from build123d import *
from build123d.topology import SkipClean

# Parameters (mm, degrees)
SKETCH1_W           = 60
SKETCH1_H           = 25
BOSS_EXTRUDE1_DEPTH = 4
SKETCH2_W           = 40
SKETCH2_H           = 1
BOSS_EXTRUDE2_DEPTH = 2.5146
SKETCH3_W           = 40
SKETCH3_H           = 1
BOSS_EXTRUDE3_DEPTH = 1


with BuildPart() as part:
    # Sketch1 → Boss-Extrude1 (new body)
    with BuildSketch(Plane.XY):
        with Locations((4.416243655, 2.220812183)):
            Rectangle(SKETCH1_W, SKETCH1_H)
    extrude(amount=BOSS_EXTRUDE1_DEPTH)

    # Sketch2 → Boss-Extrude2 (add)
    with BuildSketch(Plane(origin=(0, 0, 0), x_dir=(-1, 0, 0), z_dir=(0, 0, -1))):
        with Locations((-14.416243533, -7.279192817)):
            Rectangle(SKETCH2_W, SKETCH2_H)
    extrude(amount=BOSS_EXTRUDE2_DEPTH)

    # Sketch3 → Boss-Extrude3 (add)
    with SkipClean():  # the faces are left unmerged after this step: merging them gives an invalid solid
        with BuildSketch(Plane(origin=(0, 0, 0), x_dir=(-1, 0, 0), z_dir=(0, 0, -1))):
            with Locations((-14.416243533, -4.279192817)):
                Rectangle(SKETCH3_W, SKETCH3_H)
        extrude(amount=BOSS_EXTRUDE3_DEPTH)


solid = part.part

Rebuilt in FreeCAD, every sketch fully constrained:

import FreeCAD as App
import Part
import Sketcher

V = App.Vector

doc = App.newDocument("Part")
body = doc.addObject("PartDesign::Body", "Body")

sketch1 = doc.addObject("Sketcher::SketchObject", "Sketch")
body.addObject(sketch1)
sketch1.AttachmentSupport = (doc.XY_Plane, [""])
sketch1.MapMode = "FlatFace"
sketch1.addGeometry(Part.LineSegment(V(-26, 15, 0), V(-26, -10, 0)), False)
sketch1.addGeometry(Part.LineSegment(V(-26, -10, 0), V(34, -10, 0)), False)
sketch1.addGeometry(Part.LineSegment(V(34, -10, 0), V(34, 15, 0)), False)
sketch1.addGeometry(Part.LineSegment(V(34, 15, 0), V(-26, 15, 0)), False)
sketch1.addConstraint(Sketcher.Constraint("Coincident", 0, 2, 1, 1))
sketch1.addConstraint(Sketcher.Constraint("Coincident", 1, 2, 2, 1))
sketch1.addConstraint(Sketcher.Constraint("Coincident", 2, 2, 3, 1))
sketch1.addConstraint(Sketcher.Constraint("Coincident", 3, 2, 0, 1))
sketch1.addConstraint(Sketcher.Constraint("Vertical", 0))
sketch1.addConstraint(Sketcher.Constraint("Horizontal", 1))
sketch1.addConstraint(Sketcher.Constraint("Vertical", 2))
sketch1.addConstraint(Sketcher.Constraint("Horizontal", 3))
sketch1.addConstraint(Sketcher.Constraint("DistanceX", 1, 1, 1, 2, 60.0))
sketch1.addConstraint(Sketcher.Constraint("DistanceY", 0, 2, 0, 1, 25.0))
sketch1.addConstraint(Sketcher.Constraint("DistanceX", 0, 2, -1, 1, 25.583756))
sketch1.addConstraint(Sketcher.Constraint("DistanceY", 0, 2, -1, 1, 10.279188))
pad1 = doc.addObject("PartDesign::Pad", "Pad")
body.addObject(pad1)
pad1.Profile = sketch1
pad1.Length = 4

sketch2 = doc.addObject("Sketcher::SketchObject", "Sketch001")
body.addObject(sketch2)
sketch2.AttachmentSupport = (doc.XY_Plane, [""])
sketch2.MapMode = "FlatFace"
sketch2.addGeometry(Part.LineSegment(V(34.4, -6.8, 0), V(34.4, -7.8, 0)), False)
sketch2.addGeometry(Part.LineSegment(V(34.4, -7.8, 0), V(-5.6, -7.8, 0)), False)
sketch2.addGeometry(Part.LineSegment(V(-5.6, -7.8, 0), V(-5.6, -6.8, 0)), False)
sketch2.addGeometry(Part.LineSegment(V(-5.6, -6.8, 0), V(34.4, -6.8, 0)), False)
sketch2.addConstraint(Sketcher.Constraint("Coincident", 0, 2, 1, 1))
sketch2.addConstraint(Sketcher.Constraint("Coincident", 1, 2, 2, 1))
sketch2.addConstraint(Sketcher.Constraint("Coincident", 2, 2, 3, 1))
sketch2.addConstraint(Sketcher.Constraint("Coincident", 3, 2, 0, 1))
sketch2.addConstraint(Sketcher.Constraint("Vertical", 0))
sketch2.addConstraint(Sketcher.Constraint("Horizontal", 1))
sketch2.addConstraint(Sketcher.Constraint("Vertical", 2))
sketch2.addConstraint(Sketcher.Constraint("Horizontal", 3))
sketch2.addConstraint(Sketcher.Constraint("DistanceX", 1, 2, 1, 1, 40.0))
sketch2.addConstraint(Sketcher.Constraint("DistanceY", 0, 2, 0, 1, 1.0))
sketch2.addConstraint(Sketcher.Constraint("DistanceX", -1, 1, 0, 2, 34.416244))
sketch2.addConstraint(Sketcher.Constraint("DistanceY", 0, 2, -1, 1, 7.779193))
pad2 = doc.addObject("PartDesign::Pad", "Pad001")
body.addObject(pad2)
pad2.Profile = sketch2
pad2.Length = 2.5146
pad2.Reversed = True

sketch3 = doc.addObject("Sketcher::SketchObject", "Sketch002")
body.addObject(sketch3)
sketch3.AttachmentSupport = (doc.XY_Plane, [""])
sketch3.MapMode = "FlatFace"
sketch3.addGeometry(Part.LineSegment(V(34.4, -3.8, 0), V(34.4, -4.8, 0)), False)
sketch3.addGeometry(Part.LineSegment(V(34.4, -4.8, 0), V(-5.6, -4.8, 0)), False)
sketch3.addGeometry(Part.LineSegment(V(-5.6, -4.8, 0), V(-5.6, -3.8, 0)), False)
sketch3.addGeometry(Part.LineSegment(V(-5.6, -3.8, 0), V(34.4, -3.8, 0)), False)
sketch3.addConstraint(Sketcher.Constraint("Coincident", 0, 2, 1, 1))
sketch3.addConstraint(Sketcher.Constraint("Coincident", 1, 2, 2, 1))
sketch3.addConstraint(Sketcher.Constraint("Coincident", 2, 2, 3, 1))
sketch3.addConstraint(Sketcher.Constraint("Coincident", 3, 2, 0, 1))
sketch3.addConstraint(Sketcher.Constraint("Vertical", 0))
sketch3.addConstraint(Sketcher.Constraint("Horizontal", 1))
sketch3.addConstraint(Sketcher.Constraint("Vertical", 2))
sketch3.addConstraint(Sketcher.Constraint("Horizontal", 3))
sketch3.addConstraint(Sketcher.Constraint("DistanceX", 1, 2, 1, 1, 40.0))
sketch3.addConstraint(Sketcher.Constraint("DistanceY", 0, 2, 0, 1, 1.0))
sketch3.addConstraint(Sketcher.Constraint("DistanceX", -1, 1, 0, 2, 34.416244))
sketch3.addConstraint(Sketcher.Constraint("DistanceY", 0, 2, -1, 1, 4.779193))
pad3 = doc.addObject("PartDesign::Pad", "Pad002")
body.addObject(pad3)
pad3.Profile = sketch3
pad3.Length = 1
pad3.Reversed = True

doc.recompute()
